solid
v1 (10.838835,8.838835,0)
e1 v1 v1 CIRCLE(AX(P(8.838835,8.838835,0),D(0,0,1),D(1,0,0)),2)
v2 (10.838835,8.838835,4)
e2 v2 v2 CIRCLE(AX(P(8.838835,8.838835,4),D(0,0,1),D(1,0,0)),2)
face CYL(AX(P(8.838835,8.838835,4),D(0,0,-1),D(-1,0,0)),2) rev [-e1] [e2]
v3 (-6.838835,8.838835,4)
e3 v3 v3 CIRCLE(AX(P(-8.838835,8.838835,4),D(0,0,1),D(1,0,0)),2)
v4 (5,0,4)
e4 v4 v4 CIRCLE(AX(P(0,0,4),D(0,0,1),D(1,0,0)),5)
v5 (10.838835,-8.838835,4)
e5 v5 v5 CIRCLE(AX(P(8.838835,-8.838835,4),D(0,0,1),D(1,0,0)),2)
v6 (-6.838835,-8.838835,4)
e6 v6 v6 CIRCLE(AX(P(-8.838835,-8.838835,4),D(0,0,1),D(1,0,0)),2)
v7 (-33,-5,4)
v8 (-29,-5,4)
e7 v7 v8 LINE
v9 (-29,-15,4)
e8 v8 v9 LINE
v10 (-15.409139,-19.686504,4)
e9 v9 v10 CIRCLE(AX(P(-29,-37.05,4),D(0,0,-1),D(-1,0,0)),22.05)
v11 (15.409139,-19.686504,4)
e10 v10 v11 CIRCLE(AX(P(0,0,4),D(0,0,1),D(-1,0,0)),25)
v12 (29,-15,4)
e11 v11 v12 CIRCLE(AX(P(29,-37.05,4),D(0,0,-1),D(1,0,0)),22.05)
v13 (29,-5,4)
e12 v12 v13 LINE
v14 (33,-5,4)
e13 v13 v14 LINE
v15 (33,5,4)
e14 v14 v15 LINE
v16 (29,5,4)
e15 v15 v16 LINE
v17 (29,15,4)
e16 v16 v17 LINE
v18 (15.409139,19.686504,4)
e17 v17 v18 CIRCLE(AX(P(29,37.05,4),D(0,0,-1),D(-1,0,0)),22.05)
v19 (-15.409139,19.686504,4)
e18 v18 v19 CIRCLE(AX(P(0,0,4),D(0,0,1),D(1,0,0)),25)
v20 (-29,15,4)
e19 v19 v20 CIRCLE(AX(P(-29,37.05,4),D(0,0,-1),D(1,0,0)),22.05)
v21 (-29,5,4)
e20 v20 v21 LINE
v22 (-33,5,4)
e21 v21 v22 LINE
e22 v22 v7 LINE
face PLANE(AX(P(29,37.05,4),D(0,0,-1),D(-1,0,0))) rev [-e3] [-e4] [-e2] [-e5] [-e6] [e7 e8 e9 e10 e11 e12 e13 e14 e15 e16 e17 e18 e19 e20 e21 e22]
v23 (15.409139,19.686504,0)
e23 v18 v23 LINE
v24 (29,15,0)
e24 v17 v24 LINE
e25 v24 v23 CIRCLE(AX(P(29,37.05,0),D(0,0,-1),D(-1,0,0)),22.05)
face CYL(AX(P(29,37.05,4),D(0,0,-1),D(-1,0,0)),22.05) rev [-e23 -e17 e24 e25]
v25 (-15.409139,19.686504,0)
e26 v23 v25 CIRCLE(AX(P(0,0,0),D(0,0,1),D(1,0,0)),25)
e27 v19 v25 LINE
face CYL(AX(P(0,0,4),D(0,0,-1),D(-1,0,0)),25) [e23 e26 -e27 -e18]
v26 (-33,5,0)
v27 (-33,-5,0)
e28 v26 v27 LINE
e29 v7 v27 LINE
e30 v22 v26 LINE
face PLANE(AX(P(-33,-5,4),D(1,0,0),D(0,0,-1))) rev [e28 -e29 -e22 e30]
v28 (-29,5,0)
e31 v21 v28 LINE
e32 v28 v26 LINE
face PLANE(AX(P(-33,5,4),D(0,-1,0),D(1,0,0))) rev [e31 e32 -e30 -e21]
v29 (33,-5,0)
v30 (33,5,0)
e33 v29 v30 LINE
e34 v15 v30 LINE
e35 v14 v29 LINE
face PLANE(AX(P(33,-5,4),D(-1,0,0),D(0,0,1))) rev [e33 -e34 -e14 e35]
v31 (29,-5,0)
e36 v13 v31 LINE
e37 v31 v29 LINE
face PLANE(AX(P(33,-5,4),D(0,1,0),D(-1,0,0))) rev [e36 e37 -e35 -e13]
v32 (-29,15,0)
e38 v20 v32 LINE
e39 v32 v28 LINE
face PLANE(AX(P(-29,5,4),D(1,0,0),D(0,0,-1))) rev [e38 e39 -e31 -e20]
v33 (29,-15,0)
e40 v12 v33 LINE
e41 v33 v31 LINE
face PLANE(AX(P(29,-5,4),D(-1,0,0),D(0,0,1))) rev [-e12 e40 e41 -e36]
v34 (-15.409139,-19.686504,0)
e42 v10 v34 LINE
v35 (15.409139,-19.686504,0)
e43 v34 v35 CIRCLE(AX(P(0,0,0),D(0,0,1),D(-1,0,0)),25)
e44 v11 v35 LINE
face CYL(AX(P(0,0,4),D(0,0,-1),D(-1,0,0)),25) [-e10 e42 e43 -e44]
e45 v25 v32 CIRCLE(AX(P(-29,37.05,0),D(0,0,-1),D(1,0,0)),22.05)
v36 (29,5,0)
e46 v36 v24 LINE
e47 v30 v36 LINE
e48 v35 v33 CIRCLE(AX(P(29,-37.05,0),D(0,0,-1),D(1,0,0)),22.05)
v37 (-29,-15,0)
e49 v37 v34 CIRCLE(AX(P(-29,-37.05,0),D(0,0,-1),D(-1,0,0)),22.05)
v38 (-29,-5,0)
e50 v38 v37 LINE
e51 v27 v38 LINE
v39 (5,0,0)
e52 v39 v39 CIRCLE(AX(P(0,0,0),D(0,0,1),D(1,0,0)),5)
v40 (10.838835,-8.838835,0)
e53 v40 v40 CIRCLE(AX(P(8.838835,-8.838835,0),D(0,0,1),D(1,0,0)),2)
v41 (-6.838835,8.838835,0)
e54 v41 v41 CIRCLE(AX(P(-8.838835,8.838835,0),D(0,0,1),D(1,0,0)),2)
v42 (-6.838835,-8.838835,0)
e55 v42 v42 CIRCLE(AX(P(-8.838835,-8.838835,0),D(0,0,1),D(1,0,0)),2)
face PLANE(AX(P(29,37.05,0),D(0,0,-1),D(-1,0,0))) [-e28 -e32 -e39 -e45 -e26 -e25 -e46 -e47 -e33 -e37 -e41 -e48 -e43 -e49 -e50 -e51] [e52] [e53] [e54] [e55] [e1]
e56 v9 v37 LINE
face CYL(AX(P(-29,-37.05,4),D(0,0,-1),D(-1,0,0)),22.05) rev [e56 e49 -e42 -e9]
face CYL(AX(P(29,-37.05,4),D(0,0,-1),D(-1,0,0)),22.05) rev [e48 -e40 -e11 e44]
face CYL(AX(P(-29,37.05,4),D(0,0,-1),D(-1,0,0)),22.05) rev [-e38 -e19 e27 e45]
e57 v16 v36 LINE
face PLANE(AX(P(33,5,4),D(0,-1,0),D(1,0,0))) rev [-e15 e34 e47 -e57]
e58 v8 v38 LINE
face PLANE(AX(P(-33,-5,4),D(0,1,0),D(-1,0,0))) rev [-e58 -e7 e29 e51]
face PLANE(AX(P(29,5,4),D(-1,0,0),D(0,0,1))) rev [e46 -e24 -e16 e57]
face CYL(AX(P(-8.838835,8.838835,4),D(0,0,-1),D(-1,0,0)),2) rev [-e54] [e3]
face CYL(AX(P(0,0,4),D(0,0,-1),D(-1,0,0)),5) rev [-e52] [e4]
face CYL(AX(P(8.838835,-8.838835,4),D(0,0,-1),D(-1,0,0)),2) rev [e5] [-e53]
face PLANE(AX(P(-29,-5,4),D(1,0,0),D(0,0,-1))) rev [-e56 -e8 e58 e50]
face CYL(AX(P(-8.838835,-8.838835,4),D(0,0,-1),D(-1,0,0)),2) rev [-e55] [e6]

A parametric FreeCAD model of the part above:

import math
import FreeCAD as App
import Part
import Sketcher
Q = App.Units.Quantity

doc = App.newDocument("Part")
body = doc.addObject("PartDesign::Body", "Body")

# Sketch on XY plane
sketch1 = doc.addObject("Sketcher::SketchObject", "Sketch")
body.addObject(sketch1)
sketch1.AttachmentSupport = (doc.XY_Plane, [""])
sketch1.MapMode = "FlatFace"
sketch1.addGeometry([
    Part.LineSegment(App.Vector(33, -5, 0), App.Vector(33, 5, 0)),  # 0
    Part.LineSegment(App.Vector(33, 5, 0), App.Vector(29, 5, 0)),  # 1
    Part.LineSegment(App.Vector(29, 5, 0), App.Vector(29, 15, 0)),  # 2
    Part.ArcOfCircle(Part.Circle(App.Vector(29, 37, 0), App.Vector(0, 0, 1), 22.1), math.radians(-128), math.radians(-90)),  # 3
    Part.ArcOfCircle(Part.Circle(App.Vector(0, 0, 0), App.Vector(0, 0, 1), 25), math.radians(52), math.radians(128)),  # 4
    Part.ArcOfCircle(Part.Circle(App.Vector(-29, 37, 0), App.Vector(0, 0, 1), 22.1), math.radians(-90), math.radians(-52)),  # 5
    Part.LineSegment(App.Vector(-29, 15, 0), App.Vector(-29, 5, 0)),  # 6
    Part.LineSegment(App.Vector(-29, 5, 0), App.Vector(-33, 5, 0)),  # 7
    Part.LineSegment(App.Vector(-33, 5, 0), App.Vector(-33, -5, 0)),  # 8
    Part.LineSegment(App.Vector(-33, -5, 0), App.Vector(-29, -5, 0)),  # 9
    Part.LineSegment(App.Vector(-29, -5, 0), App.Vector(-29, -15, 0)),  # 10
    Part.ArcOfCircle(Part.Circle(App.Vector(-29, -37, 0), App.Vector(0, 0, 1), 22.1), math.radians(52), math.radians(90)),  # 11
    Part.ArcOfCircle(Part.Circle(App.Vector(0, 0, 0), App.Vector(0, 0, 1), 25), math.radians(-128), math.radians(-52)),  # 12
    Part.ArcOfCircle(Part.Circle(App.Vector(29, -37, 0), App.Vector(0, 0, 1), 22.1), math.radians(90), math.radians(128)),  # 13
    Part.LineSegment(App.Vector(29, -15, 0), App.Vector(29, -5, 0)),  # 14
    Part.LineSegment(App.Vector(29, -5, 0), App.Vector(33, -5, 0)),  # 15
    Part.Circle(App.Vector(-8.8, -8.8, 0), App.Vector(0, 0, 1), 2),  # 16
    Part.Circle(App.Vector(8.8, -8.8, 0), App.Vector(0, 0, 1), 2),  # 17
    Part.Circle(App.Vector(0, 0, 0), App.Vector(0, 0, 1), 5),  # 18
    Part.Circle(App.Vector(-8.8, 8.8, 0), App.Vector(0, 0, 1), 2),  # 19
    Part.Circle(App.Vector(8.8, 8.8, 0), App.Vector(0, 0, 1), 2),  # 20
], False)
sketch1.addConstraint([
    Sketcher.Constraint("Coincident", 0, 2, 1, 1),
    Sketcher.Constraint("Coincident", 1, 2, 2, 1),
    Sketcher.Constraint("Coincident", 2, 2, 3, 2),
    Sketcher.Constraint("Tangent", 3, 1, 4, 1),
    Sketcher.Constraint("Tangent", 4, 2, 5, 2),
    Sketcher.Constraint("Coincident", 5, 1, 6, 1),
    Sketcher.Constraint("Coincident", 6, 2, 7, 1),
    Sketcher.Constraint("Coincident", 7, 2, 8, 1),
    Sketcher.Constraint("Coincident", 8, 2, 9, 1),
    Sketcher.Constraint("Coincident", 9, 2, 10, 1),
    Sketcher.Constraint("Coincident", 10, 2, 11, 2),
    Sketcher.Constraint("Tangent", 11, 1, 12, 1),
    Sketcher.Constraint("Tangent", 12, 2, 13, 2),
    Sketcher.Constraint("Coincident", 13, 1, 14, 1),
    Sketcher.Constraint("Coincident", 14, 2, 15, 1),
    Sketcher.Constraint("Coincident", 15, 2, 0, 1),
    Sketcher.Constraint("Vertical", 0),
    Sketcher.Constraint("Horizontal", 1),
    Sketcher.Constraint("Vertical", 2),
    Sketcher.Constraint("Vertical", 6),
    Sketcher.Constraint("Horizontal", 7),
    Sketcher.Constraint("Vertical", 8),
    Sketcher.Constraint("Horizontal", 9),
    Sketcher.Constraint("Vertical", 10),
    Sketcher.Constraint("Vertical", 14),
    Sketcher.Constraint("Horizontal", 15),
    Sketcher.Constraint("Coincident", 4, 3, -1, 1),
    Sketcher.Constraint("Coincident", 12, 3, -1, 1),
    Sketcher.Constraint("Coincident", 18, 3, -1, 1),
    Sketcher.Constraint("Equal", 3, 5),
    Sketcher.Constraint("Equal", 5, 11),
    Sketcher.Constraint("Equal", 4, 12),
    Sketcher.Constraint("Equal", 11, 13),
    Sketcher.Constraint("Equal", 16, 17),
    Sketcher.Constraint("Equal", 17, 19),
    Sketcher.Constraint("Equal", 19, 20),
    Sketcher.Constraint("Symmetric", 17, 3, 19, 3, -1, 1),
    Sketcher.Constraint("Symmetric", 16, 3, 20, 3, -1, 1),
    Sketcher.Constraint("Symmetric", 0, 2, 8, 2, -1, 1),
    Sketcher.Constraint("Symmetric", 2, 2, 10, 2, -1, 1),
    Sketcher.Constraint("Symmetric", 5, 1, 13, 1, -1, 1),
    Sketcher.Constraint("Symmetric", 16, 3, 17, 3, -2),
    Sketcher.Constraint("Symmetric", 2, 2, 5, 1, -2),
    Sketcher.Constraint("Horizontal", 1, 2, 6, 2),
    Sketcher.Constraint("Horizontal", 9, 2, 14, 2),
    Sketcher.Constraint("Vertical", 13, 3, 1, 2),
    Sketcher.Constraint("Equal", 0, 2),
    Sketcher.Constraint("Diameter", 16, Q("4 mm")),
    Sketcher.Constraint("Diameter", 18, Q("10 mm")),
    Sketcher.Constraint("Radius", 4, Q("25 mm")),
    Sketcher.Constraint("DistanceX", 1, 2, 1, 1, Q("4 mm")),
    Sketcher.Constraint("DistanceY", 0, 1, 0, 2, Q("10 mm")),
    Sketcher.Constraint("Radius", 3, Q("22.05 mm")),
    Sketcher.Constraint("DistanceX", 16, 3, 17, 3, Q("17.67767 mm")),
    Sketcher.Constraint("DistanceY", 16, 3, 19, 3, Q("17.67767 mm")),
])
pad1 = doc.addObject("PartDesign::Pad", "Pad")
body.addObject(pad1)
pad1.Profile = sketch1
pad1.Length = 4

doc.recompute()
